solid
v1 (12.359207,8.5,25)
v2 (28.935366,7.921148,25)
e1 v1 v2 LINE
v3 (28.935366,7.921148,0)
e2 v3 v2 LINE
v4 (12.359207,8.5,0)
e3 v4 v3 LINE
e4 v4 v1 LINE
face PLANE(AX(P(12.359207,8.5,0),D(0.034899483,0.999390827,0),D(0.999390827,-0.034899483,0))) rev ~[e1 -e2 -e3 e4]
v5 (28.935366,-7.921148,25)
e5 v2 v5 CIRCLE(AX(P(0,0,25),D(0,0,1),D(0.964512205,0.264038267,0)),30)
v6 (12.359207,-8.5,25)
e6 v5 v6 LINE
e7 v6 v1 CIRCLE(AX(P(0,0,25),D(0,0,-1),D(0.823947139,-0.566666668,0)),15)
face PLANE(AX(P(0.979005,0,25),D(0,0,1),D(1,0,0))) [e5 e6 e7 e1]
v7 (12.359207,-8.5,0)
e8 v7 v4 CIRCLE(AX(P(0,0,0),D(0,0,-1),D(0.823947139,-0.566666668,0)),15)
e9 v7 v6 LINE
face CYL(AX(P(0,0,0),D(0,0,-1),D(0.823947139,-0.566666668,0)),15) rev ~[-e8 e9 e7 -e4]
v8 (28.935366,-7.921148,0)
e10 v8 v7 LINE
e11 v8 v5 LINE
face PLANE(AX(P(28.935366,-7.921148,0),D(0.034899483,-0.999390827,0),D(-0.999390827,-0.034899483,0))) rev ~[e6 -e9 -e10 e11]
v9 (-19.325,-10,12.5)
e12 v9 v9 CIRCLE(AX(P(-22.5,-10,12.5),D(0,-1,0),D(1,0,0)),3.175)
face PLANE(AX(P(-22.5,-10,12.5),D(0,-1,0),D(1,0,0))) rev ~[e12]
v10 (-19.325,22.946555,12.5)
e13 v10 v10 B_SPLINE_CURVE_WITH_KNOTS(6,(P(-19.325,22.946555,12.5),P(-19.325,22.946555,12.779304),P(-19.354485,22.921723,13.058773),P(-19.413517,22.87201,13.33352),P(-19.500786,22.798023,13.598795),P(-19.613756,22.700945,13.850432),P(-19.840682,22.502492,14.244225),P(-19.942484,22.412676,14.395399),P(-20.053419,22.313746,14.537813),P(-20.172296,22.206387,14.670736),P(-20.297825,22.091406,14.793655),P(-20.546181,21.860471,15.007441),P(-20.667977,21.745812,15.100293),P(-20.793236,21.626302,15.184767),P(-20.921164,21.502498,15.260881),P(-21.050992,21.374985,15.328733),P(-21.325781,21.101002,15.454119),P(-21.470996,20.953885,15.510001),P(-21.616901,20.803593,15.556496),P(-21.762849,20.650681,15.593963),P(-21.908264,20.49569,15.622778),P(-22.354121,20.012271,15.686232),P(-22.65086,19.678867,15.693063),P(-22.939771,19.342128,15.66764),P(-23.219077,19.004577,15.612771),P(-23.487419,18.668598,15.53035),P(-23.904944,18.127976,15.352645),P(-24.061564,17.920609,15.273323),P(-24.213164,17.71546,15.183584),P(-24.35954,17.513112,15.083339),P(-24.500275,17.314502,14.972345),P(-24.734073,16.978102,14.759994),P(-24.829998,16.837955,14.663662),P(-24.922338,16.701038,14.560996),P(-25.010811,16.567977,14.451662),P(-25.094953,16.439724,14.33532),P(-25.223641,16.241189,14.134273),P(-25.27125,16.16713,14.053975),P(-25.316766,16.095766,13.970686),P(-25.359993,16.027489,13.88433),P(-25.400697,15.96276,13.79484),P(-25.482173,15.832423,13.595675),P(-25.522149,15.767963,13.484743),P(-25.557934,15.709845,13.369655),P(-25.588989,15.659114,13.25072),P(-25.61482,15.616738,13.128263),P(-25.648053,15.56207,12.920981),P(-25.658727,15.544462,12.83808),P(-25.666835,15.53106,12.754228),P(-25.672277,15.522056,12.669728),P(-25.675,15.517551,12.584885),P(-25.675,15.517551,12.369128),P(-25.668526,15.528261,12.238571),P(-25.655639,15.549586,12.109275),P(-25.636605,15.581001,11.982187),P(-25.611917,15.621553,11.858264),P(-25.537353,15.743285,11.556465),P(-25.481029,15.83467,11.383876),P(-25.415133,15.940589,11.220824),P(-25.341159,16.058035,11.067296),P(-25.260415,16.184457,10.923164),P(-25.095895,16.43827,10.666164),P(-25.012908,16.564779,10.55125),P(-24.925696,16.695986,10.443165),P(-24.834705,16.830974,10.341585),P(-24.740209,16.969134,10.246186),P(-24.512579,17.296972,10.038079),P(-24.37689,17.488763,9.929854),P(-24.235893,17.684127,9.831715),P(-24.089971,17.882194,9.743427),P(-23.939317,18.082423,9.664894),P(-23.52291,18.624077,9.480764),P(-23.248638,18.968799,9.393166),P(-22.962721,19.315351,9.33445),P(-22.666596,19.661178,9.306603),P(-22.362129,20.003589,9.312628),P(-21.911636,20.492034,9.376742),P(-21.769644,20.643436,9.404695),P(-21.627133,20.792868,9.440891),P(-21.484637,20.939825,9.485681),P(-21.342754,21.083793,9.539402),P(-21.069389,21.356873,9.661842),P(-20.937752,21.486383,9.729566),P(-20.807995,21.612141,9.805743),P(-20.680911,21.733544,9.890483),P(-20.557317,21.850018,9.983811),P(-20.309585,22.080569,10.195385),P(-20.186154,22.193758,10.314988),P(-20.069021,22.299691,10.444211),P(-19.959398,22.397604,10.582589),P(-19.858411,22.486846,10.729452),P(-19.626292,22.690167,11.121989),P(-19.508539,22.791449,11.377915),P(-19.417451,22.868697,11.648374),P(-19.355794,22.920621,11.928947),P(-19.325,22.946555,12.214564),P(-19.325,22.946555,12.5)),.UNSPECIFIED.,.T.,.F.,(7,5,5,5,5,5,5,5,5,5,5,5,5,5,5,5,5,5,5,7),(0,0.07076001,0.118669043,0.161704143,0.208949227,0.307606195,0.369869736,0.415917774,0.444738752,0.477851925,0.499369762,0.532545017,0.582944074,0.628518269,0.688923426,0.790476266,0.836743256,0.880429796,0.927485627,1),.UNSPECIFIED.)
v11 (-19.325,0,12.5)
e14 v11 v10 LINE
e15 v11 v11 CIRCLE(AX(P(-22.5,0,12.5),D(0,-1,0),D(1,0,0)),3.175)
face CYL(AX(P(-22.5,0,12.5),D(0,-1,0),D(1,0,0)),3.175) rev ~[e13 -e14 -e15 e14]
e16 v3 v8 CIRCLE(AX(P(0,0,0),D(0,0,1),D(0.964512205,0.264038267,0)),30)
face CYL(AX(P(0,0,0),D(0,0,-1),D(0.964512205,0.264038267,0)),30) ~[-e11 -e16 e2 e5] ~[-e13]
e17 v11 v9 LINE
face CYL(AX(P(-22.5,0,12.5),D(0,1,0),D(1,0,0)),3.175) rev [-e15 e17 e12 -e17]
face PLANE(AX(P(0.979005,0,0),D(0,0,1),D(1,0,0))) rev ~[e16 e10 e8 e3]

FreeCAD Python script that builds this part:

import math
import FreeCAD as App
import Part
import Sketcher
from FreeCAD import Vector
Q = App.Units.Quantity

doc = App.newDocument("Part")
body = doc.addObject("PartDesign::Body", "Body")

sketch1 = body.newObject("Sketcher::SketchObject", "Sketch")
sketch1.AttachmentSupport = (doc.getObject("XY_Plane"), [""])
sketch1.MapMode = "FlatFace"
sketch1.addGeometry(Part.ArcOfCircle(Part.Circle(Vector(0, 0, 0), Vector(0, 0, 1), 15), math.radians(34.518108), math.radians(325.481892)), False)
sketch1.addGeometry(Part.LineSegment(Vector(12.359207, 8.5, 0), Vector(28.935366, 7.921148, 0)), False)
sketch1.addGeometry(Part.ArcOfCircle(Part.Circle(Vector(0, 0, 0), Vector(0, 0, 1), 30), math.radians(15.309814), math.radians(344.690186)), False)
sketch1.addGeometry(Part.LineSegment(Vector(28.935366, -7.921148, 0), Vector(12.359207, -8.5, 0)), False)
sketch1.addConstraint(Sketcher.Constraint("Coincident", 0, 1, 1, 1))
sketch1.addConstraint(Sketcher.Constraint("Coincident", 1, 2, 2, 1))
sketch1.addConstraint(Sketcher.Constraint("Coincident", 2, 2, 3, 1))
sketch1.addConstraint(Sketcher.Constraint("Coincident", 3, 2, 0, 2))
sketch1.addConstraint(Sketcher.Constraint("Coincident", 0, 3, -1, 1))
sketch1.addConstraint(Sketcher.Constraint("Coincident", 2, 3, -1, 1))
sketch1.addConstraint(Sketcher.Constraint("Vertical", 1, 2, 2, 2))
sketch1.addConstraint(Sketcher.Constraint("Vertical", 0, 1, 3, 2))
sketch1.addConstraint(Sketcher.Constraint("Radius", 0, Q("15 mm")))
sketch1.addConstraint(Sketcher.Constraint("Radius", 2, Q("30 mm")))
sketch1.addConstraint(Sketcher.Constraint("Angle", 1, Q("-1.999999 deg")))
sketch1.addConstraint(Sketcher.Constraint("DistanceY", 3, 2, 0, 1, Q("17 mm")))
pad1 = body.newObject("PartDesign::Pad", "Pad")
pad1.Profile = sketch1
pad1.Length = 25

sketch2 = body.newObject("Sketcher::SketchObject", "Sketch001")
sketch2.AttachmentSupport = (doc.getObject("XZ_Plane"), [""])
sketch2.MapMode = "FlatFace"
sketch2.addGeometry(Part.Circle(Vector(-22.5, 12.5, 0), Vector(0, 0, 1), 3.175), False)
sketch2.addConstraint(Sketcher.Constraint("Diameter", 0, Q("6.35 mm")))
sketch2.addConstraint(Sketcher.Constraint("DistanceX", 0, 3, -1, 1, Q("22.5 mm")))
sketch2.addConstraint(Sketcher.Constraint("DistanceY", -1, 1, 0, 3, Q("12.5 mm")))
pocket1 = body.newObject("PartDesign::Pocket", "Pocket")
pocket1.Profile = sketch2
pocket1.Type = "TwoLengths"
pocket1.Length = 10
pocket1.Length2 = 30.001
pocket1.Reversed = True

doc.recompute()
